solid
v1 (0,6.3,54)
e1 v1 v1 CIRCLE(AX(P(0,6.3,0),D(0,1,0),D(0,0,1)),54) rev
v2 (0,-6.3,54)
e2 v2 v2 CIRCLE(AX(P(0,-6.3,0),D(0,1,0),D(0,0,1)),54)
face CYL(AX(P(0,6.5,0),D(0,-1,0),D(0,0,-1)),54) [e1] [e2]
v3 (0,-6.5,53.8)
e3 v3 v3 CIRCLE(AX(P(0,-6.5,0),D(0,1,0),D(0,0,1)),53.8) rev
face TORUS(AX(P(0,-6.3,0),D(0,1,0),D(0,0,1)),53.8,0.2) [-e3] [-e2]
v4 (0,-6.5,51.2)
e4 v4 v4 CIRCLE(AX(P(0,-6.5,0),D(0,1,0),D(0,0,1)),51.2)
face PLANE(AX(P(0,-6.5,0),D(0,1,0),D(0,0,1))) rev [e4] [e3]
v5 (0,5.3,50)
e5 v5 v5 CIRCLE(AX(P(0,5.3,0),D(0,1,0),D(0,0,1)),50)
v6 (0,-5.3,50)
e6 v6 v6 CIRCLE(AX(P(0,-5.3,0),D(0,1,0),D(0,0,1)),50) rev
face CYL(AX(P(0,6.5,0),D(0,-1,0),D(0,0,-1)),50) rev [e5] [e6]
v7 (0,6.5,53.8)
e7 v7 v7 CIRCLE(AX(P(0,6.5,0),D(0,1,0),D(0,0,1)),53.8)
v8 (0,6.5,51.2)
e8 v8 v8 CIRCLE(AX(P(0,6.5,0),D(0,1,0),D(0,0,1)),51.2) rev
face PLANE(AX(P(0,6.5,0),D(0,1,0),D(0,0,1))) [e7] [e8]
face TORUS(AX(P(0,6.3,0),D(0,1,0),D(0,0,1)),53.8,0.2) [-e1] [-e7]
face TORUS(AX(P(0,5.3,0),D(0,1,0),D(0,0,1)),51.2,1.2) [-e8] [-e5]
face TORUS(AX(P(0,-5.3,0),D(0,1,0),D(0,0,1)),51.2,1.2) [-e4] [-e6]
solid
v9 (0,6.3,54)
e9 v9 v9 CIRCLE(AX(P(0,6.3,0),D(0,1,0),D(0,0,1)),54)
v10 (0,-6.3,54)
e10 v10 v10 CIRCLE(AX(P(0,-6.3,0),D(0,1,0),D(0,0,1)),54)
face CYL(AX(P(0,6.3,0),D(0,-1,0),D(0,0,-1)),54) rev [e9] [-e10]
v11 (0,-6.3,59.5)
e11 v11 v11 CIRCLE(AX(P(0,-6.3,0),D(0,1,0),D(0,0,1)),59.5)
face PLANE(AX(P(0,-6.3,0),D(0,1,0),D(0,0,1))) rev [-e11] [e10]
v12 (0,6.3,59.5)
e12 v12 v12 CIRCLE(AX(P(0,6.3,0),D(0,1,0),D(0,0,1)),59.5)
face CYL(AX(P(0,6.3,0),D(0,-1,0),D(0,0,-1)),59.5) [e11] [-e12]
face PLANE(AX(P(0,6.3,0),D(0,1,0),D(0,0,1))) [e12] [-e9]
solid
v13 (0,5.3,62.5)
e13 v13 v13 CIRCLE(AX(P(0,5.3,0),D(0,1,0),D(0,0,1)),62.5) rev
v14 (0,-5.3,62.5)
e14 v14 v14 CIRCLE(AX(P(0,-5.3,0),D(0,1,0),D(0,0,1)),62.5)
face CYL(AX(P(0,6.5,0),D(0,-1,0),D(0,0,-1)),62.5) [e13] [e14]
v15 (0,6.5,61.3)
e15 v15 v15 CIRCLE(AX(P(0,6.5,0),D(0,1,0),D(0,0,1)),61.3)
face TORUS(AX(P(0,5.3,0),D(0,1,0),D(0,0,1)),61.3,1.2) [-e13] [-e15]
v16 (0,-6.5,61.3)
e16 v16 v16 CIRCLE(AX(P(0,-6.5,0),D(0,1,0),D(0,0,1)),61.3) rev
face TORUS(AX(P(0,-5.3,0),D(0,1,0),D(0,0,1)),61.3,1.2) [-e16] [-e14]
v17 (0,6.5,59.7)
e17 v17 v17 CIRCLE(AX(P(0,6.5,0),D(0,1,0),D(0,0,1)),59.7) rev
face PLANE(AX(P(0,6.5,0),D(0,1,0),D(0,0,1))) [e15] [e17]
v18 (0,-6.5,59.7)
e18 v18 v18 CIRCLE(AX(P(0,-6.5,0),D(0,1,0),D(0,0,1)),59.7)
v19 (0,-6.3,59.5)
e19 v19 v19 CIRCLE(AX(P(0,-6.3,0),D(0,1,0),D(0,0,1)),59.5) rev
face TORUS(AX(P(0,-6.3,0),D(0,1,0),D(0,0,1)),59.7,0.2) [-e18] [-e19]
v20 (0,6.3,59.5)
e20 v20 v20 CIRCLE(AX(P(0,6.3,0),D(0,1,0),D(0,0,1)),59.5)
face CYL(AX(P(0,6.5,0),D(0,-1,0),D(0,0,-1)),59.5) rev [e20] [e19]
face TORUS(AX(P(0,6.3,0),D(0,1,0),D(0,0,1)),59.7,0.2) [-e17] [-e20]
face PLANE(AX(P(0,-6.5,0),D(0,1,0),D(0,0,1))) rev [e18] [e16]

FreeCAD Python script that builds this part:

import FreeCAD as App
import Part
import Sketcher

V = App.Vector


def edges_at(feature, points):
    """Names of the edges that pass closest to the given points."""
    edges = feature.Shape.Edges
    near = lambda p: min(range(len(edges)), key=lambda i: edges[i].distToShape(Part.Vertex(*p))[0])
    return sorted({f"Edge{near(p) + 1}" for p in points})

doc = App.newDocument("Part")
body = doc.addObject("PartDesign::Body", "Body")

# Sketch on XZ plane
sketch1 = doc.addObject("Sketcher::SketchObject", "Sketch")
body.addObject(sketch1)
sketch1.AttachmentSupport = (doc.XZ_Plane, [""])
sketch1.MapMode = "FlatFace"
sketch1.addGeometry(Part.Circle(V(0, 0, 0), V(0, 0, 1), 62), False)
sketch1.addGeometry(Part.Circle(V(0, 0, 0), V(0, 0, 1), 60), False)
sketch1.addConstraint(Sketcher.Constraint("Coincident", 0, 3, -1, 1))
sketch1.addConstraint(Sketcher.Constraint("Coincident", 1, 3, -1, 1))
sketch1.addConstraint(Sketcher.Constraint("Diameter", 0, 125.0))
sketch1.addConstraint(Sketcher.Constraint("Diameter", 1, 119.0))
pad1 = doc.addObject("PartDesign::Pad", "Pad")
body.addObject(pad1)
pad1.Profile = sketch1
pad1.Length = 13
pad1.Midplane = True
doc.recompute()

fillet = doc.addObject("PartDesign::Fillet", "Fillet")
body.addObject(fillet)
fillet.Base = (pad1, edges_at(pad1, [(-62.5, -6.5, 0), (-62.5, 6.5, 0)]))
fillet.Radius = 1.2
doc.recompute()

fillet2 = doc.addObject("PartDesign::Fillet", "Fillet001")
body.addObject(fillet2)
fillet2.Base = (fillet, edges_at(fillet, [(-59.5, -6.5, 0), (-59.5, 6.5, 0)]))
fillet2.Radius = 0.2
body2 = doc.addObject("PartDesign::Body", "Body001")

# Sketch on XZ plane
sketch2 = doc.addObject("Sketcher::SketchObject", "Sketch001")
body2.addObject(sketch2)
sketch2.AttachmentSupport = (doc.getObject("XZ_Plane001"), [""])
sketch2.MapMode = "FlatFace"
sketch2.addGeometry(Part.Circle(V(0, 0, 0), V(0, 0, 1), 54), False)
sketch2.addGeometry(Part.Circle(V(0, 0, 0), V(0, 0, 1), 50), False)
sketch2.addConstraint(Sketcher.Constraint("Coincident", 0, 3, -1, 1))
sketch2.addConstraint(Sketcher.Constraint("Coincident", 1, 3, -1, 1))
sketch2.addConstraint(Sketcher.Constraint("Diameter", 0, 108.0))
sketch2.addConstraint(Sketcher.Constraint("Diameter", 1, 100.0))
pad2 = doc.addObject("PartDesign::Pad", "Pad001")
body2.addObject(pad2)
pad2.Profile = sketch2
pad2.Length = 13
pad2.Midplane = True
doc.recompute()

fillet3 = doc.addObject("PartDesign::Fillet", "Fillet002")
body2.addObject(fillet3)
fillet3.Base = (pad2, edges_at(pad2, [(-50, -6.5, 0), (-50, 6.5, 0)]))
fillet3.Radius = 1.2
doc.recompute()

fillet4 = doc.addObject("PartDesign::Fillet", "Fillet003")
body2.addObject(fillet4)
fillet4.Base = (fillet3, edges_at(fillet3, [(-54, -6.5, 0), (-54, 6.5, 0)]))
fillet4.Radius = 0.2
body3 = doc.addObject("PartDesign::Body", "Body002")

# Sketch on XZ plane
sketch3 = doc.addObject("Sketcher::SketchObject", "Sketch002")
body3.addObject(sketch3)
sketch3.AttachmentSupport = (doc.getObject("XZ_Plane002"), [""])
sketch3.MapMode = "FlatFace"
sketch3.addGeometry(Part.Circle(V(0, 0, 0), V(0, 0, 1), 60), False)
sketch3.addGeometry(Part.Circle(V(0, 0, 0), V(0, 0, 1), 54), False)
sketch3.addConstraint(Sketcher.Constraint("Coincident", 0, 3, -1, 1))
sketch3.addConstraint(Sketcher.Constraint("Coincident", 1, 3, -1, 1))
sketch3.addConstraint(Sketcher.Constraint("Diameter", 0, 119.0))
sketch3.addConstraint(Sketcher.Constraint("Diameter", 1, 108.0))
pad3 = doc.addObject("PartDesign::Pad", "Pad002")
body3.addObject(pad3)
pad3.Profile = sketch3
pad3.Length = 12.6
pad3.Midplane = True

doc.recompute()
